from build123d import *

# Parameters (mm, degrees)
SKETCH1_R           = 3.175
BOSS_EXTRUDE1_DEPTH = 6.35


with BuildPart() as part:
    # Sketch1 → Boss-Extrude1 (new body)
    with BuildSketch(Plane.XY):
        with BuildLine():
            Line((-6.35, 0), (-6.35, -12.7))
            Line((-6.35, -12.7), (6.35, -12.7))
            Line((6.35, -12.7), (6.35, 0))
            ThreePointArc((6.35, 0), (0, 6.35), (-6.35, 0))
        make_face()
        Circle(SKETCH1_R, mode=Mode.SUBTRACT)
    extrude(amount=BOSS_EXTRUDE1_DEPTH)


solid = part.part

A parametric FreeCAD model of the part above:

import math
import FreeCAD as App
import Part
import Sketcher
Q = App.Units.Quantity

doc = App.newDocument("Part")
body = doc.addObject("PartDesign::Body", "Body")

# Sketch on XY plane
sketch1 = body.newObject("Sketcher::SketchObject", "Sketch")
sketch1.AttachmentSupport = (doc.getObject("XY_Plane"), [""])
sketch1.MapMode = "FlatFace"
sketch1.addGeometry([
    Part.LineSegment(App.Vector(-6.3, 0, 0), App.Vector(-6.3, -12.7, 0)),  # 0
    Part.LineSegment(App.Vector(-6.3, -12.7, 0), App.Vector(6.3, -12.7, 0)),  # 1
    Part.LineSegment(App.Vector(6.3, -12.7, 0), App.Vector(6.3, 0, 0)),  # 2
    Part.ArcOfCircle(Part.Circle(App.Vector(0, 0, 0), App.Vector(0, 0, 1), 6.3), math.radians(0), math.radians(180)),  # 3
    Part.Circle(App.Vector(0, 0, 0), App.Vector(0, 0, 1), 3.2),  # 4
], False)
sketch1.addConstraint([
    Sketcher.Constraint("Coincident", 0, 2, 1, 1),
    Sketcher.Constraint("Coincident", 1, 2, 2, 1),
    Sketcher.Constraint("Tangent", 2, 2, 3, 1),
    Sketcher.Constraint("Tangent", 3, 2, 0, 1),
    Sketcher.Constraint("Vertical", 0),
    Sketcher.Constraint("Horizontal", 1),
    Sketcher.Constraint("Vertical", 2),
    Sketcher.Constraint("Coincident", 3, 3, -1, 1),
    Sketcher.Constraint("Coincident", 4, 3, -1, 1),
    Sketcher.Constraint("Equal", 1, 0),
    Sketcher.Constraint("Diameter", 4, Q("0.25 in")),
    Sketcher.Constraint("Radius", 3, Q("0.25 in")),
])
pad1 = body.newObject("PartDesign::Pad", "Pad")
pad1.Profile = sketch1
pad1.Length = Q("0.25 in")

doc.recompute()
